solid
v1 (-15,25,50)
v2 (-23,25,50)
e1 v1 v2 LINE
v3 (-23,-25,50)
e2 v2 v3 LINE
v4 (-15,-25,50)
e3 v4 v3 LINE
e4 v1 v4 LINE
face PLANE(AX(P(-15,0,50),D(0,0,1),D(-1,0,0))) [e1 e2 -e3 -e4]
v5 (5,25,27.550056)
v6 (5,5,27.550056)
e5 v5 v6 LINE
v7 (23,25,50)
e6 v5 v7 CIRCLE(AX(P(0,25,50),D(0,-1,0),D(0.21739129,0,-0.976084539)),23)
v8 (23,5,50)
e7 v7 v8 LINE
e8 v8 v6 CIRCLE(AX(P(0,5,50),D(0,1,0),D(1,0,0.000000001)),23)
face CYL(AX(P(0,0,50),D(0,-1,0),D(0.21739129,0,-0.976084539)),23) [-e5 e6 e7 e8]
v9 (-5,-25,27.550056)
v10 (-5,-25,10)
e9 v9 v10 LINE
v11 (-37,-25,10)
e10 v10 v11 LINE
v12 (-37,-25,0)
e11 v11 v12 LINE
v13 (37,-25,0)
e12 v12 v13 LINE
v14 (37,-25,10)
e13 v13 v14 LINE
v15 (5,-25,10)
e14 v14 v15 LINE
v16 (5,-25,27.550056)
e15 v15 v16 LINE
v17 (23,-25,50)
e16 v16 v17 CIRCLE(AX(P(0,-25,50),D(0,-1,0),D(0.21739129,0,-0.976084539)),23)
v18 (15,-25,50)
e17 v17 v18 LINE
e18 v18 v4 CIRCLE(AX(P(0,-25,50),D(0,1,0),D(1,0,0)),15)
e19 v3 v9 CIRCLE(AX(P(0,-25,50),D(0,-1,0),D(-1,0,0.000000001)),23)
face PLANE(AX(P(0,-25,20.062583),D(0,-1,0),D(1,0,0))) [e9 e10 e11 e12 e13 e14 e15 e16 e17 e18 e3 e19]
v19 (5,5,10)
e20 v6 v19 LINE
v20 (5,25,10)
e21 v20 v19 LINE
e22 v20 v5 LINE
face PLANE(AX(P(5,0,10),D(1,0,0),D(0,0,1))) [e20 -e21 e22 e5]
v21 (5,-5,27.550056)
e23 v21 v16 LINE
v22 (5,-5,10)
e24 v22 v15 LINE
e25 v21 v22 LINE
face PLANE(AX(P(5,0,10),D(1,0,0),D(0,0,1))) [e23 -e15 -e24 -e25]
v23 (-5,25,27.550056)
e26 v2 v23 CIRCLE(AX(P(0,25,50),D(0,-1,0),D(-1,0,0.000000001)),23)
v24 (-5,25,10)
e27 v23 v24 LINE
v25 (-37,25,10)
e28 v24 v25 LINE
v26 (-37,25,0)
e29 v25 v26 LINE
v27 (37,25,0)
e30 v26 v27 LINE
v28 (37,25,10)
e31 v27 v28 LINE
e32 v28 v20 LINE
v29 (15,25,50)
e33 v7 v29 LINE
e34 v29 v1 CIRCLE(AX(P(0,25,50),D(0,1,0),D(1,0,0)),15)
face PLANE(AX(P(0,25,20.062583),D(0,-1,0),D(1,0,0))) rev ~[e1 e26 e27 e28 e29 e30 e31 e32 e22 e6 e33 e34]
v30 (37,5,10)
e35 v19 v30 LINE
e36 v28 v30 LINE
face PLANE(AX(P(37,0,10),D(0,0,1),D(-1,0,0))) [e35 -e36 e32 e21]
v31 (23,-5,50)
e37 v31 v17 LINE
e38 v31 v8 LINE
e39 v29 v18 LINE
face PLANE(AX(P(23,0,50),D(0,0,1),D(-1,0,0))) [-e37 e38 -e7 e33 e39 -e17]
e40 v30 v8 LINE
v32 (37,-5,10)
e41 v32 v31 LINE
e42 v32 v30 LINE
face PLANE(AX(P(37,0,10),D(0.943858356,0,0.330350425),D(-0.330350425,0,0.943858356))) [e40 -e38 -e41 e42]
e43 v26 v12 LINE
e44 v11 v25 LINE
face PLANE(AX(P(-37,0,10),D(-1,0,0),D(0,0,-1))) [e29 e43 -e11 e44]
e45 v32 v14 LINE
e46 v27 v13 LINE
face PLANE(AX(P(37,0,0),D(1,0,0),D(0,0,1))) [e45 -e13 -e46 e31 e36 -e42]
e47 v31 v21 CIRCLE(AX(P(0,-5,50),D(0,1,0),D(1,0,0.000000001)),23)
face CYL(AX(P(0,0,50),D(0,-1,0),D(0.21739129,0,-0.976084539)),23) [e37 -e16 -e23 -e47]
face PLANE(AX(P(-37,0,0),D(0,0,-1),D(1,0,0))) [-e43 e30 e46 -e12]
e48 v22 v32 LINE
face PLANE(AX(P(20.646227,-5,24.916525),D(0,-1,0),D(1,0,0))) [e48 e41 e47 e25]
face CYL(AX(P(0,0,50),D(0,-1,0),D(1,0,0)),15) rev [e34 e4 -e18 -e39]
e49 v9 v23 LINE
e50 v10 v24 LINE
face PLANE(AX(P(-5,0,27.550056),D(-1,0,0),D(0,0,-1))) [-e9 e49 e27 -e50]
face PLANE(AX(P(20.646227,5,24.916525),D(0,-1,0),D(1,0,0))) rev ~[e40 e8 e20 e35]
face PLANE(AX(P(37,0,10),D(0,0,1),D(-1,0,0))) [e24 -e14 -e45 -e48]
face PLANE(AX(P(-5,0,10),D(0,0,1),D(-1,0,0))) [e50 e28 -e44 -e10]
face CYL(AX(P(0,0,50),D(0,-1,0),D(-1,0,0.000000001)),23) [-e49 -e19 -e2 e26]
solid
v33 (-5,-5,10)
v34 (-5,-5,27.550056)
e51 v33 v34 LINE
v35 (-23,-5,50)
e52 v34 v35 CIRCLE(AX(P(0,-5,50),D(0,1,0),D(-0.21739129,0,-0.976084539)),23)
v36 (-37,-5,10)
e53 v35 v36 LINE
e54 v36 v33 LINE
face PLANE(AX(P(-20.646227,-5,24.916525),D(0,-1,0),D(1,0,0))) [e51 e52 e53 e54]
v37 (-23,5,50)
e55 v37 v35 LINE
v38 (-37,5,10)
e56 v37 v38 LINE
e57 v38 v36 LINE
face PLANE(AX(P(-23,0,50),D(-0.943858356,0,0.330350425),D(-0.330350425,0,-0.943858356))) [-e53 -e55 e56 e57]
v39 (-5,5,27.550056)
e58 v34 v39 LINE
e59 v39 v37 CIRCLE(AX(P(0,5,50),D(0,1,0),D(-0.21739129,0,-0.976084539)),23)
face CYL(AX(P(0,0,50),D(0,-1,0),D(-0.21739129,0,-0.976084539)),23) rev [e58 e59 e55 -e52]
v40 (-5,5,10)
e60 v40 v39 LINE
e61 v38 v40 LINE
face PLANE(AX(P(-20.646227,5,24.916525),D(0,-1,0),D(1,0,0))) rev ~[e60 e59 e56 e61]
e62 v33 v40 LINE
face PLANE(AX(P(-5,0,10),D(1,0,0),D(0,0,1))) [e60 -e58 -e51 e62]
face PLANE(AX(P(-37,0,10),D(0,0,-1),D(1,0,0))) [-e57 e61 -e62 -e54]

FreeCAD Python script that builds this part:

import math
import FreeCAD as App
import Part
import Sketcher
from FreeCAD import Vector
Q = App.Units.Quantity

doc = App.newDocument("Part")
params = doc.addObject("Spreadsheet::Sheet", "Params")
for row, (alias, value) in enumerate([
    ("sketch1_radius", "23 mm"),
    ("sketch1_radius2", "15 mm"),
    ("sketch1_width", "74 mm"),
    ("sketch1_width2", "32 mm"),
    ("sketch1_height", "10 mm"),
    ("pad1_length", "50 mm"),
    ("sketch2_radius", "23 mm"),
    ("sketch2_width", "32 mm"),
    ("pad2_length", "10 mm"),
    ("sketch3_radius", "23 mm"),
    ("sketch3_width", "32 mm"),
    ("pad3_length", "10 mm"),
], start=1):
    params.set(f"A{row}", alias)
    params.set(f"B{row}", "=" + value)
    params.setAlias(f"B{row}", alias)

body = doc.addObject("PartDesign::Body", "Body")

# Sketch on XZ plane
sketch1 = body.newObject("Sketcher::SketchObject", "Sketch")
sketch1.AttachmentSupport = (doc.getObject("XZ_Plane"), [""])
sketch1.MapMode = "FlatFace"
sketch1.addGeometry(Part.LineSegment(Vector(-37, 10, 0), Vector(-37, 0, 0)), False)
sketch1.addGeometry(Part.LineSegment(Vector(-37, 0, 0), Vector(37, 0, 0)), False)
sketch1.addGeometry(Part.LineSegment(Vector(37, 0, 0), Vector(37, 10, 0)), False)
sketch1.addGeometry(Part.LineSegment(Vector(37, 10, 0), Vector(5, 10, 0)), False)
sketch1.addGeometry(Part.LineSegment(Vector(5, 10, 0), Vector(5, 28, 0)), False)
sketch1.addGeometry(Part.ArcOfCircle(Part.Circle(Vector(0, 50, 0), Vector(0, 0, 1), 23), math.radians(-77), math.radians(0)), False)
sketch1.addGeometry(Part.LineSegment(Vector(23, 50, 0), Vector(15, 50, 0)), False)
sketch1.addGeometry(Part.ArcOfCircle(Part.Circle(Vector(0, 50, 0), Vector(0, 0, 1), 15), math.radians(180), math.radians(360)), False)
sketch1.addGeometry(Part.LineSegment(Vector(-15, 50, 0), Vector(-23, 50, 0)), False)
sketch1.addGeometry(Part.ArcOfCircle(Part.Circle(Vector(0, 50, 0), Vector(0, 0, 1), 23), math.radians(180), math.radians(257)), False)
sketch1.addGeometry(Part.LineSegment(Vector(-5, 28, 0), Vector(-5, 10, 0)), False)
sketch1.addGeometry(Part.LineSegment(Vector(-5, 10, 0), Vector(-37, 10, 0)), False)
sketch1.addConstraint(Sketcher.Constraint("Coincident", 0, 2, 1, 1))
sketch1.addConstraint(Sketcher.Constraint("Coincident", 1, 2, 2, 1))
sketch1.addConstraint(Sketcher.Constraint("Coincident", 2, 2, 3, 1))
sketch1.addConstraint(Sketcher.Constraint("Coincident", 3, 2, 4, 1))
sketch1.addConstraint(Sketcher.Constraint("Coincident", 4, 2, 5, 1))
sketch1.addConstraint(Sketcher.Constraint("Coincident", 5, 2, 6, 1))
sketch1.addConstraint(Sketcher.Constraint("Coincident", 6, 2, 7, 2))
sketch1.addConstraint(Sketcher.Constraint("Coincident", 7, 1, 8, 1))
sketch1.addConstraint(Sketcher.Constraint("Coincident", 8, 2, 9, 1))
sketch1.addConstraint(Sketcher.Constraint("Coincident", 9, 2, 10, 1))
sketch1.addConstraint(Sketcher.Constraint("Coincident", 10, 2, 11, 1))
sketch1.addConstraint(Sketcher.Constraint("Coincident", 11, 2, 0, 1))
sketch1.addConstraint(Sketcher.Constraint("Vertical", 0))
sketch1.addConstraint(Sketcher.Constraint("Horizontal", 1))
sketch1.addConstraint(Sketcher.Constraint("Vertical", 2))
sketch1.addConstraint(Sketcher.Constraint("Horizontal", 3))
sketch1.addConstraint(Sketcher.Constraint("Vertical", 4))
sketch1.addConstraint(Sketcher.Constraint("Horizontal", 6))
sketch1.addConstraint(Sketcher.Constraint("Horizontal", 8))
sketch1.addConstraint(Sketcher.Constraint("Vertical", 10))
sketch1.addConstraint(Sketcher.Constraint("Horizontal", 11))
sketch1.addConstraint(Sketcher.Constraint("Coincident", 7, 3, 5, 3))
sketch1.addConstraint(Sketcher.Constraint("Coincident", 9, 3, 5, 3))
sketch1.addConstraint(Sketcher.Constraint("Equal", 5, 9))
sketch1.addConstraint(Sketcher.Constraint("Symmetric", 0, 2, 1, 2, -1, 1))
sketch1.addConstraint(Sketcher.Constraint("Symmetric", 6, 2, 7, 1, -2))
sketch1.addConstraint(Sketcher.Constraint("Symmetric", 3, 2, 10, 2, -2))
sketch1.addConstraint(Sketcher.Constraint("Horizontal", 9, 3, 5, 2))
sketch1.addConstraint(Sketcher.Constraint("Radius", 5, Q("23 mm")))
sketch1.addConstraint(Sketcher.Constraint("Radius", 7, Q("15 mm")))
sketch1.addConstraint(Sketcher.Constraint("DistanceX", 1, 1, 1, 2, Q("74 mm")))
sketch1.addConstraint(Sketcher.Constraint("DistanceX", 3, 2, 3, 1, Q("32 mm")))
sketch1.addConstraint(Sketcher.Constraint("DistanceY", 0, 2, 0, 1, Q("10 mm")))
sketch1.addConstraint(Sketcher.Constraint("DistanceY", -1, 1, 5, 3, Q("50 mm")))
sketch1.setExpression("Constraints[28]", "Params.sketch1_radius")
sketch1.setExpression("Constraints[29]", "Params.sketch1_radius2")
sketch1.setExpression("Constraints[30]", "Params.sketch1_width")
sketch1.setExpression("Constraints[31]", "Params.sketch1_width2")
sketch1.setExpression("Constraints[32]", "Params.sketch1_height")
pad1 = body.newObject("PartDesign::Pad", "Pad")
pad1.Profile = sketch1
pad1.setExpression("Length", "Params.pad1_length")
pad1.Midplane = True

# Sketch on XZ plane
sketch2 = body.newObject("Sketcher::SketchObject", "Sketch001")
sketch2.AttachmentSupport = (doc.getObject("XZ_Plane"), [""])
sketch2.MapMode = "FlatFace"
sketch2.addGeometry(Part.ArcOfCircle(Part.Circle(Vector(0, 50, 0), Vector(0, 0, 1), 23), math.radians(-77), math.radians(0)), False)
sketch2.addGeometry(Part.LineSegment(Vector(5, 28, 0), Vector(5, 10, 0)), False)
sketch2.addGeometry(Part.LineSegment(Vector(5, 10, 0), Vector(37, 10, 0)), False)
sketch2.addGeometry(Part.LineSegment(Vector(37, 10, 0), Vector(23, 50, 0)), False)
sketch2.addConstraint(Sketcher.Constraint("Coincident", 0, 1, 1, 1))
sketch2.addConstraint(Sketcher.Constraint("Coincident", 1, 2, 2, 1))
sketch2.addConstraint(Sketcher.Constraint("Coincident", 2, 2, 3, 1))
sketch2.addConstraint(Sketcher.Constraint("Coincident", 3, 2, 0, 2))
sketch2.addConstraint(Sketcher.Constraint("Vertical", 1))
sketch2.addConstraint(Sketcher.Constraint("Horizontal", 2))
sketch2.addConstraint(Sketcher.Constraint("PointOnObject", 0, 3, -2))
sketch2.addConstraint(Sketcher.Constraint("Horizontal", 0, 3, 3, 2))
sketch2.addConstraint(Sketcher.Constraint("Radius", 0, Q("23 mm")))
sketch2.addConstraint(Sketcher.Constraint("DistanceX", 2, 1, 2, 2, Q("32 mm")))
sketch2.addConstraint(Sketcher.Constraint("DistanceY", -1, 1, 0, 3, Q("50 mm")))
sketch2.addConstraint(Sketcher.Constraint("DistanceX", -1, 1, 0, 1, Q("5 mm")))
sketch2.addConstraint(Sketcher.Constraint("DistanceY", -1, 1, 1, 2, Q("10 mm")))
sketch2.setExpression("Constraints[8]", "Params.sketch2_radius")
sketch2.setExpression("Constraints[9]", "Params.sketch2_width")
pad2 = body.newObject("PartDesign::Pad", "Pad001")
pad2.Profile = sketch2
pad2.setExpression("Length", "Params.pad2_length")
pad2.Midplane = True
body2 = doc.addObject("PartDesign::Body", "Body001")

# Sketch on XZ plane
sketch3 = body2.newObject("Sketcher::SketchObject", "Sketch002")
sketch3.AttachmentSupport = (doc.getObject("XZ_Plane001"), [""])
sketch3.MapMode = "FlatFace"
sketch3.addGeometry(Part.ArcOfCircle(Part.Circle(Vector(0, 50, 0), Vector(0, 0, 1), 23), math.radians(180), math.radians(257)), False)
sketch3.addGeometry(Part.LineSegment(Vector(-23, 50, 0), Vector(-37, 10, 0)), False)
sketch3.addGeometry(Part.LineSegment(Vector(-37, 10, 0), Vector(-5, 10, 0)), False)
sketch3.addGeometry(Part.LineSegment(Vector(-5, 10, 0), Vector(-5, 28, 0)), False)
sketch3.addConstraint(Sketcher.Constraint("Coincident", 0, 1, 1, 1))
sketch3.addConstraint(Sketcher.Constraint("Coincident", 1, 2, 2, 1))
sketch3.addConstraint(Sketcher.Constraint("Coincident", 2, 2, 3, 1))
sketch3.addConstraint(Sketcher.Constraint("Coincident", 3, 2, 0, 2))
sketch3.addConstraint(Sketcher.Constraint("Horizontal", 2))
sketch3.addConstraint(Sketcher.Constraint("Vertical", 3))
sketch3.addConstraint(Sketcher.Constraint("PointOnObject", 0, 3, -2))
sketch3.addConstraint(Sketcher.Constraint("Radius", 0, Q("23 mm")))
sketch3.addConstraint(Sketcher.Constraint("DistanceX", 2, 1, 2, 2, Q("32 mm")))
sketch3.addConstraint(Sketcher.Constraint("DistanceY", -1, 1, 0, 3, Q("50 mm")))
sketch3.addConstraint(Sketcher.Constraint("DistanceY", -1, 1, 0, 1, Q("50 mm")))
sketch3.addConstraint(Sketcher.Constraint("DistanceX", 1, 2, -1, 1, Q("37 mm")))
sketch3.addConstraint(Sketcher.Constraint("DistanceY", -1, 1, 1, 2, Q("10 mm")))
sketch3.setExpression("Constraints[7]", "Params.sketch3_radius")
sketch3.setExpression("Constraints[8]", "Params.sketch3_width")
pad3 = body2.newObject("PartDesign::Pad", "Pad002")
pad3.Profile = sketch3
pad3.setExpression("Length", "Params.pad3_length")
pad3.Midplane = True

doc.recompute()
